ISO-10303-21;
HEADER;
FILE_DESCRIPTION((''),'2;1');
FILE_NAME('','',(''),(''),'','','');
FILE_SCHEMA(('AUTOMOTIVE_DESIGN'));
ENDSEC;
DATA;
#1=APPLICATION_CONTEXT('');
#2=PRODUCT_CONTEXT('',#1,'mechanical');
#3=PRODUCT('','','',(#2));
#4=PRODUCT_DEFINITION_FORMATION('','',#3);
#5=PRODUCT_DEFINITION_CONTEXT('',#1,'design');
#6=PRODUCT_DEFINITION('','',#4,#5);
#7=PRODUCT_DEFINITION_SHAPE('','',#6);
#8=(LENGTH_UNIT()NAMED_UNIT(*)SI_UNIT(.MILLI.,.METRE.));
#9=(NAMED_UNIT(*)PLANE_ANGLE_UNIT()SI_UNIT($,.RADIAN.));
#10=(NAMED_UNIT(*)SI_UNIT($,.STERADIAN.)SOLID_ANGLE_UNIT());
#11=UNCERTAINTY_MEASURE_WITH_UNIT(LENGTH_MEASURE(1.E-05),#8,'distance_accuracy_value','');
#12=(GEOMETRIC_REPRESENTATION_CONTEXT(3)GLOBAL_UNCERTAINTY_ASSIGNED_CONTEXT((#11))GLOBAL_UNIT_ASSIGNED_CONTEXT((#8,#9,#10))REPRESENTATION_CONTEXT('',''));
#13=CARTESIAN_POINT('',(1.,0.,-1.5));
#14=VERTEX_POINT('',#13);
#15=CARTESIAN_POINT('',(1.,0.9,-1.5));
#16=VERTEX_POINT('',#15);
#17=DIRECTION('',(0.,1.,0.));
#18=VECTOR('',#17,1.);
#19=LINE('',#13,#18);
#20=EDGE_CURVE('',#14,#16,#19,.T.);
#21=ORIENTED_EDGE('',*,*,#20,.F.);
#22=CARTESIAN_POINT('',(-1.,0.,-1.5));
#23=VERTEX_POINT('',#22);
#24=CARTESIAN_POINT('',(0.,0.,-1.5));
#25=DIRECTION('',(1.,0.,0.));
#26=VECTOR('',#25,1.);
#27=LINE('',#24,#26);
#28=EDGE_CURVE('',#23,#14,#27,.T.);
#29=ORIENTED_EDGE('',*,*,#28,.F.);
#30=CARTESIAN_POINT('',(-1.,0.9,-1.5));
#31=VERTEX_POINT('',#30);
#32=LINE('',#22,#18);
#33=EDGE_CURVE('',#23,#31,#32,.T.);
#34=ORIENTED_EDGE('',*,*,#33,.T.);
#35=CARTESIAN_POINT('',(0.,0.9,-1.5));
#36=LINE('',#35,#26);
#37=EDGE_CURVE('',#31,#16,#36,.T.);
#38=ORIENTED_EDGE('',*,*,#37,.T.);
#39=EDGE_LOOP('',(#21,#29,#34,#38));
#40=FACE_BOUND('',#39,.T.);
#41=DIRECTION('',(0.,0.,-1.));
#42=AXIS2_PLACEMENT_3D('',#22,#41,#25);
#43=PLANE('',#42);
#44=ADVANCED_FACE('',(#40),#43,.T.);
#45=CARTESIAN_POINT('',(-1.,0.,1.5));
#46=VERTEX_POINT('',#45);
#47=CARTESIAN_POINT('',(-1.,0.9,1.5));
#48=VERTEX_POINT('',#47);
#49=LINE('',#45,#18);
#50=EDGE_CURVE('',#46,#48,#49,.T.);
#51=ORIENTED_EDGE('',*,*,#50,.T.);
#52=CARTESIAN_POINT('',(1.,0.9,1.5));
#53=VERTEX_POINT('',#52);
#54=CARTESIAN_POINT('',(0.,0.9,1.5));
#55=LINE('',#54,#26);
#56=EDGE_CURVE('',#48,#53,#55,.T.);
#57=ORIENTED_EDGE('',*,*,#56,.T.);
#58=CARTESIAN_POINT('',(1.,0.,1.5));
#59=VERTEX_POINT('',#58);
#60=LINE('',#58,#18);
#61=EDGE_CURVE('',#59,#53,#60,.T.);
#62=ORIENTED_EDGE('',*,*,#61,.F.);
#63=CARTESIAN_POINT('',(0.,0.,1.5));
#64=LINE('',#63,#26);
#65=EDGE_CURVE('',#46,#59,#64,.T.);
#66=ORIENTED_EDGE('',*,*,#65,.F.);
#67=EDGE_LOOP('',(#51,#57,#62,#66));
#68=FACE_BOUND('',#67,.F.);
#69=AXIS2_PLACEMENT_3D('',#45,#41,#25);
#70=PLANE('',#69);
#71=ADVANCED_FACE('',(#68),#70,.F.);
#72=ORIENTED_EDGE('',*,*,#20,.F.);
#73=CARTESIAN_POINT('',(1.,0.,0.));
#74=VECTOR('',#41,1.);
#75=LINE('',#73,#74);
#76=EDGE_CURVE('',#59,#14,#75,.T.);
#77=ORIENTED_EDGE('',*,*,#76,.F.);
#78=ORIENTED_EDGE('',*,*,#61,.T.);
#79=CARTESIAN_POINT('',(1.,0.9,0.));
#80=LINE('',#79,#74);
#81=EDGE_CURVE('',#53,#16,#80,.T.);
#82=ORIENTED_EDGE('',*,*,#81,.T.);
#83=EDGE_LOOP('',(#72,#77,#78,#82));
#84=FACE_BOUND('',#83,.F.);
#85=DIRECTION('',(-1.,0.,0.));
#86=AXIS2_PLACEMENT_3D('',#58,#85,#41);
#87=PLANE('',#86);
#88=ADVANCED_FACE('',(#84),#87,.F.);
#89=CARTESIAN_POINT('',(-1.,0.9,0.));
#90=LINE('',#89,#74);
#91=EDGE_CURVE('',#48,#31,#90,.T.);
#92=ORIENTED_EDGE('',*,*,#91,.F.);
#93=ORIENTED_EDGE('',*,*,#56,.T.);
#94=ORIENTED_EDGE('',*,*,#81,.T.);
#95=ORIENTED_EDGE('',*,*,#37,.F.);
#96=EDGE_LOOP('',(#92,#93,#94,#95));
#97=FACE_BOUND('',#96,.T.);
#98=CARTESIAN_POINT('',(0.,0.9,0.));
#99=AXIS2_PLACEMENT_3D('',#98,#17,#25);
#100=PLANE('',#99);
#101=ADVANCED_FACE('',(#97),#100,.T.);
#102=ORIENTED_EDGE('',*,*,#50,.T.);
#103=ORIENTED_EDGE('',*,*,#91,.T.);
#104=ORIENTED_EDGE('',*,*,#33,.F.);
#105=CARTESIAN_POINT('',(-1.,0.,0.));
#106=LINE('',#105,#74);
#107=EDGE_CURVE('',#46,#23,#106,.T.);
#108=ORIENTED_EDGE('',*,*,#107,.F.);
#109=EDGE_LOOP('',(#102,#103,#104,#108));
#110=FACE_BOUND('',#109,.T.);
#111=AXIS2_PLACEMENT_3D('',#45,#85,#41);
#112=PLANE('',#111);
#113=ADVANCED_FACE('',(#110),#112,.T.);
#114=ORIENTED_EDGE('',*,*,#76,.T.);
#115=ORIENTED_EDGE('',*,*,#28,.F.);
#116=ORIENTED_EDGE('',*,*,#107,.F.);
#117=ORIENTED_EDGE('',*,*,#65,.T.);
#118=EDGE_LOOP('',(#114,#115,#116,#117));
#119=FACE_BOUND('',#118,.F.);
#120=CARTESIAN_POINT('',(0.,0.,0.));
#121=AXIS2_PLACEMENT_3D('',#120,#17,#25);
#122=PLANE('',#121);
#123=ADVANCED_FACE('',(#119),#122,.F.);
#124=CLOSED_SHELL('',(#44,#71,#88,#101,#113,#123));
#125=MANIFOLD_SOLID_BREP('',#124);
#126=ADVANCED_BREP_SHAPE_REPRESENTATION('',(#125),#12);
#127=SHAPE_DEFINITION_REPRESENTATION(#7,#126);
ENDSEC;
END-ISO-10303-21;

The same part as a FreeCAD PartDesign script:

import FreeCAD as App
import Part
import Sketcher

V = App.Vector
Q = App.Units.Quantity

doc = App.newDocument("Part")
params = doc.addObject("Spreadsheet::Sheet", "Params")
for row, (alias, value) in enumerate([
    ("sketch1_width", "2 mm"),
    ("sketch1_height", "3 mm"),
    ("pad1_length", "0.9 mm"),
], start=1):
    params.set(f"A{row}", alias)
    params.set(f"B{row}", "=" + value)
    params.setAlias(f"B{row}", alias)

body = doc.addObject("PartDesign::Body", "Body")

# Sketch on XZ plane
sketch1 = body.newObject("Sketcher::SketchObject", "Sketch")
sketch1.AttachmentSupport = (doc.getObject("XZ_Plane"), [""])
sketch1.MapMode = "FlatFace"
sketch1.addGeometry([
    Part.LineSegment(V(-1, -1.5, 0), V(-1, 1.5, 0)),
    Part.LineSegment(V(-1, 1.5, 0), V(1, 1.5, 0)),
    Part.LineSegment(V(1, 1.5, 0), V(1, -1.5, 0)),
    Part.LineSegment(V(1, -1.5, 0), V(-1, -1.5, 0)),
], False)
sketch1.addConstraint([
    Sketcher.Constraint("Coincident", 0, 2, 1, 1),
    Sketcher.Constraint("Coincident", 1, 2, 2, 1),
    Sketcher.Constraint("Coincident", 2, 2, 3, 1),
    Sketcher.Constraint("Coincident", 3, 2, 0, 1),
    Sketcher.Constraint("Vertical", 0),
    Sketcher.Constraint("Horizontal", 1),
    Sketcher.Constraint("Vertical", 2),
    Sketcher.Constraint("Horizontal", 3),
    Sketcher.Constraint("Symmetric", 0, 2, 2, 2, -1, 1),
    Sketcher.Constraint("DistanceX", 1, 1, 1, 2, Q("2 mm")),
    Sketcher.Constraint("DistanceY", 0, 1, 0, 2, Q("3 mm")),
])
sketch1.setExpression("Constraints[9]", "Params.sketch1_width")
sketch1.setExpression("Constraints[10]", "Params.sketch1_height")
pad1 = body.newObject("PartDesign::Pad", "Pad")
pad1.Profile = sketch1
pad1.setExpression("Length", "Params.pad1_length")
pad1.Reversed = True

doc.recompute()
